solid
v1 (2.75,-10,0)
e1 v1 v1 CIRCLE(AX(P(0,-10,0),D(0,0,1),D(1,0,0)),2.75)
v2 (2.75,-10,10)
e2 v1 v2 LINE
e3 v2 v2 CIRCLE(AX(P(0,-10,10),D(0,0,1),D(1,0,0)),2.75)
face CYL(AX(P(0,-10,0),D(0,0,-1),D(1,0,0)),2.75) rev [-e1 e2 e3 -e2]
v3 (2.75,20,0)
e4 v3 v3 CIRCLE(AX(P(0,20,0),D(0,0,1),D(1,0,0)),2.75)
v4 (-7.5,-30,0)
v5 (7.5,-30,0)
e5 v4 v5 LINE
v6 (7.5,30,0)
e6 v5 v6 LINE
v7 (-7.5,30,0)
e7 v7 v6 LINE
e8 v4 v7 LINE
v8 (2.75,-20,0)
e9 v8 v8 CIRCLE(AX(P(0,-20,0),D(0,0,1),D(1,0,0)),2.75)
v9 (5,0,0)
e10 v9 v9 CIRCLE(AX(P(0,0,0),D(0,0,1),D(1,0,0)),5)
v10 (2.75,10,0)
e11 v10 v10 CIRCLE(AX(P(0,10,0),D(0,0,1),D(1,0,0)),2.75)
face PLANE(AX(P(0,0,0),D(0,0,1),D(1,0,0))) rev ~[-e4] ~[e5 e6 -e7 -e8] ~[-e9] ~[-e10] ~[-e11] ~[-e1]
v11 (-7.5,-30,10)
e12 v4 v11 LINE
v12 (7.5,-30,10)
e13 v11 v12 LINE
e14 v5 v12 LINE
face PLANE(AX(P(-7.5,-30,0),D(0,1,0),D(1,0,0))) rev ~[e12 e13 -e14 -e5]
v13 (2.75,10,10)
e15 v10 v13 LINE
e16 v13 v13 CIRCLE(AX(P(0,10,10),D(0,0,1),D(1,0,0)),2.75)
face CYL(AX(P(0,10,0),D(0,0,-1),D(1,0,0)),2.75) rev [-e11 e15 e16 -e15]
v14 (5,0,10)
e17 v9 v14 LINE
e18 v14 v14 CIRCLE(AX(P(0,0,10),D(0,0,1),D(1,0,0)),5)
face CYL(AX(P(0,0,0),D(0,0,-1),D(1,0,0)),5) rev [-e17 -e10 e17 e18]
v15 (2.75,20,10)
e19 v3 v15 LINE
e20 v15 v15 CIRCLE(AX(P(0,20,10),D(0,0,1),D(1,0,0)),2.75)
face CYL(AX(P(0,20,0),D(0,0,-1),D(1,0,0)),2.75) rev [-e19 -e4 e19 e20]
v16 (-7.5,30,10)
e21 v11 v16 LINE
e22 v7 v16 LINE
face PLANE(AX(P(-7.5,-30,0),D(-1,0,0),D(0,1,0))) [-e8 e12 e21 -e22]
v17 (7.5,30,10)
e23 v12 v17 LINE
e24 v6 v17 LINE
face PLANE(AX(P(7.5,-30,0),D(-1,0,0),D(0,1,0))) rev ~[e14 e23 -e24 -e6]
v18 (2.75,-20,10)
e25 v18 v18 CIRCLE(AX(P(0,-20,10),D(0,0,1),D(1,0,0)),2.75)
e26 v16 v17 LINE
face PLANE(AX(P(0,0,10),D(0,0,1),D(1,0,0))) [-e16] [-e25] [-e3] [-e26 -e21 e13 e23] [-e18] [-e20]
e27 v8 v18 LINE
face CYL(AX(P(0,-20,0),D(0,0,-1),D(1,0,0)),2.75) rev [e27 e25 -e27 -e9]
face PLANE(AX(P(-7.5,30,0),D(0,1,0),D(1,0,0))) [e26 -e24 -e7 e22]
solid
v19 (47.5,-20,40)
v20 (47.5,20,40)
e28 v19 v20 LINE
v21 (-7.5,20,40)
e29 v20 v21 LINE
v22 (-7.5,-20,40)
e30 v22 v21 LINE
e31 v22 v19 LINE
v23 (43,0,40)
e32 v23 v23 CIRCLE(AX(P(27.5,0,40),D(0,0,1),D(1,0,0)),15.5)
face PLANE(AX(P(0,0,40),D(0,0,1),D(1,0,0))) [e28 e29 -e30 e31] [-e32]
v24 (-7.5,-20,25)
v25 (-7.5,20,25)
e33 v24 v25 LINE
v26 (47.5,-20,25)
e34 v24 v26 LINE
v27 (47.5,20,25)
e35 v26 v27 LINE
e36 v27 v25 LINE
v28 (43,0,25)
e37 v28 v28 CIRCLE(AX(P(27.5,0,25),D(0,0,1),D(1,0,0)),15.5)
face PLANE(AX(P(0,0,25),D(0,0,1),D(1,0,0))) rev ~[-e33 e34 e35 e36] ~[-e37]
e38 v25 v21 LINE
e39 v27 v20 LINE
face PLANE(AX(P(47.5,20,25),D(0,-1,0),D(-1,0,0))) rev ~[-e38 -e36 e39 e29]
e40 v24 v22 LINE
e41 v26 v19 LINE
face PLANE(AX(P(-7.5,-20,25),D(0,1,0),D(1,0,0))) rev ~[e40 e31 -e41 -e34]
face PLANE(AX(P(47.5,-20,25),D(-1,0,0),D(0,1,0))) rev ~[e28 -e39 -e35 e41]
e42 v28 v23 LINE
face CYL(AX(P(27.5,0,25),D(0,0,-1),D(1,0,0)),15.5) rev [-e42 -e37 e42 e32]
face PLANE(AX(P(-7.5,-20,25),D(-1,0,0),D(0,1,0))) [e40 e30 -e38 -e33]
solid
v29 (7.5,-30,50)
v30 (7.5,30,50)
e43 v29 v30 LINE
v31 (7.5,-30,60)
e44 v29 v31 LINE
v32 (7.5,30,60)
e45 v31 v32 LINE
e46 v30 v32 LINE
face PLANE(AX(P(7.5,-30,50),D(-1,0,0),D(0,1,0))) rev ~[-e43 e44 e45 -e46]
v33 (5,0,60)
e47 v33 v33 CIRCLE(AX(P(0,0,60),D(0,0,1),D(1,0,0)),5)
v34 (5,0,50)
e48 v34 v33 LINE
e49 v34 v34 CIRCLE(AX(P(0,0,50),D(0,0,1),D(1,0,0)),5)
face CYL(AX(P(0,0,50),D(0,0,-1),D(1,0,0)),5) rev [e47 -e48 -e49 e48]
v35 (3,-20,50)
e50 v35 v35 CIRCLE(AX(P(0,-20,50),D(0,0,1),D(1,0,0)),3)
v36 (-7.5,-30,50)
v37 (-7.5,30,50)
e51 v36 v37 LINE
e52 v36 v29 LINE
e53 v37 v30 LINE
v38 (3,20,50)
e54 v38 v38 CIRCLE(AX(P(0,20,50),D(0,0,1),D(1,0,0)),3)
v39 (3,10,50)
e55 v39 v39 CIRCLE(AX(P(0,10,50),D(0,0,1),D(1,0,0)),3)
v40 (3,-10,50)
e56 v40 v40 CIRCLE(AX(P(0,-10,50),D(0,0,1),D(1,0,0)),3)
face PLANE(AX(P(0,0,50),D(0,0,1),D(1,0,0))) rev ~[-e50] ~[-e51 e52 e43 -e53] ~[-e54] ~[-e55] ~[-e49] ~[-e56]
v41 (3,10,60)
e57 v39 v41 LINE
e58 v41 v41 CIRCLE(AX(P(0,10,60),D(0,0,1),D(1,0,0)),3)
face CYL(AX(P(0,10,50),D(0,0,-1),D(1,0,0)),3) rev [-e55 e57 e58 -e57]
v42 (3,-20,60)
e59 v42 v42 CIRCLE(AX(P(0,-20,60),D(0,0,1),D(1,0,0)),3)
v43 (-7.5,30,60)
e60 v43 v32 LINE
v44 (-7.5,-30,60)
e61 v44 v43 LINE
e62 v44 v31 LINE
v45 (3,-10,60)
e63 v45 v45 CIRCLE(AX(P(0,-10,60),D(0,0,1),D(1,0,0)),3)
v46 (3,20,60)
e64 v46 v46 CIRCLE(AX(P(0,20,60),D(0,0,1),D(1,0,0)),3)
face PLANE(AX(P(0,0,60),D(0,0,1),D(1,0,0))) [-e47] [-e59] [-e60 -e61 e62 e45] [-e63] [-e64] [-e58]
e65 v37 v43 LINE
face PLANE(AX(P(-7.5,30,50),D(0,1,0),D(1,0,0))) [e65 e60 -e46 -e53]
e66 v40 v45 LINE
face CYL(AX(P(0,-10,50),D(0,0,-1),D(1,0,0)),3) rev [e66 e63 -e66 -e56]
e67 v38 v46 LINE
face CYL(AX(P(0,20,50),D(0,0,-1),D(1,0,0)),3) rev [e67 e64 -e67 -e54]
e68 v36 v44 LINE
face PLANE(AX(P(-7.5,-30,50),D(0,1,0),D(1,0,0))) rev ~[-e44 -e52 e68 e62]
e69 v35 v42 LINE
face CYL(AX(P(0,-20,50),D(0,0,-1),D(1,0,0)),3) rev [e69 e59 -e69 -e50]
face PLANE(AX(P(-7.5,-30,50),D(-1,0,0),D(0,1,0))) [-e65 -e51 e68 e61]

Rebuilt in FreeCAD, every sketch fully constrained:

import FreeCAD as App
import Part
import Sketcher


def add_polygon(sketch, points):
    """Adds a closed chain of lines whose ends are joined by coincident constraints."""
    first, n = sketch.GeometryCount, len(points)
    for a, b in zip(points, points[1:] + points[:1]):
        sketch.addGeometry(Part.LineSegment(App.Vector(*a, 0), App.Vector(*b, 0)), False)
    for i in range(n):
        sketch.addConstraint(Sketcher.Constraint("Coincident", first + i, 2, first + (i + 1) % n, 1))

doc = App.newDocument("Part")
params = doc.addObject("Spreadsheet::Sheet", "Params")
for row, (alias, value) in enumerate([
    ("sketch1_diameter", "10 mm"),
    ("sketch1_diameter2", "5.5 mm"),
    ("sketch1_width", "15 mm"),
    ("sketch1_height", "60 mm"),
    ("pad1_length", "10 mm"),
    ("sketch2_diameter", "6 mm"),
    ("sketch2_diameter2", "10 mm"),
    ("sketch2_width", "15 mm"),
    ("sketch2_height", "60 mm"),
    ("pad2_length", "10 mm"),
    ("sketch3_diameter", "31 mm"),
    ("sketch3_width", "55 mm"),
    ("sketch3_height", "40 mm"),
    ("pad3_length", "15 mm"),
], start=1):
    params.set(f"A{row}", alias)
    params.set(f"B{row}", "=" + value)
    params.setAlias(f"B{row}", alias)

body = doc.addObject("PartDesign::Body", "Body")

# Sketch on XY plane
sketch1 = doc.addObject("Sketcher::SketchObject", "Sketch")
body.addObject(sketch1)
sketch1.AttachmentSupport = (doc.XY_Plane, [""])
sketch1.MapMode = "FlatFace"
add_polygon(sketch1, [(-7.5, 30), (-7.5, -30), (7.5, -30), (7.5, 30)])  # lines 0-3
sketch1.addGeometry(Part.Circle(App.Vector(0, -20, 0), App.Vector(0, 0, 1), 2.75), False)  # 4
sketch1.addGeometry(Part.Circle(App.Vector(0, -10, 0), App.Vector(0, 0, 1), 2.75), False)  # 5
sketch1.addGeometry(Part.Circle(App.Vector(0, 0, 0), App.Vector(0, 0, 1), 5), False)  # 6
sketch1.addGeometry(Part.Circle(App.Vector(0, 10, 0), App.Vector(0, 0, 1), 2.75), False)  # 7
sketch1.addGeometry(Part.Circle(App.Vector(0, 20, 0), App.Vector(0, 0, 1), 2.75), False)  # 8
sketch1.addConstraint([
    Sketcher.Constraint("Vertical", 0),
    Sketcher.Constraint("Horizontal", 1),
    Sketcher.Constraint("Vertical", 2),
    Sketcher.Constraint("Horizontal", 3),
    Sketcher.Constraint("Coincident", 6, 3, -1, 1),
    Sketcher.Constraint("Equal", 4, 5),
    Sketcher.Constraint("Equal", 5, 7),
    Sketcher.Constraint("Equal", 7, 8),
    Sketcher.Constraint("Symmetric", 5, 3, 7, 3, -1, 1),
    Sketcher.Constraint("Symmetric", 4, 3, 8, 3, -1, 1),
    Sketcher.Constraint("Symmetric", 0, 2, 2, 2, -1, 1),
    Sketcher.Constraint("PointOnObject", 4, 3, -2),
    Sketcher.Constraint("PointOnObject", 5, 3, -2),
    Sketcher.Constraint("Diameter", 6, 10.0),
    Sketcher.Constraint("Diameter", 4, 5.5),
    Sketcher.Constraint("DistanceX", 1, 1, 1, 2, 15.0),
    Sketcher.Constraint("DistanceY", 0, 2, 0, 1, 60.0),
    Sketcher.Constraint("DistanceY", 4, 3, -1, 1, 20.0),
    Sketcher.Constraint("DistanceY", 5, 3, -1, 1, 10.0),
])
sketch1.setExpression("Constraints[17]", "Params.sketch1_diameter")
sketch1.setExpression("Constraints[18]", "Params.sketch1_diameter2")
sketch1.setExpression("Constraints[19]", "Params.sketch1_width")
sketch1.setExpression("Constraints[20]", "Params.sketch1_height")
pad1 = doc.addObject("PartDesign::Pad", "Pad")
body.addObject(pad1)
pad1.Profile = sketch1
pad1.setExpression("Length", "Params.pad1_length")
body2 = doc.addObject("PartDesign::Body", "Body001")

# Sketch on XY plane
sketch2 = doc.addObject("Sketcher::SketchObject", "Sketch001")
body2.addObject(sketch2)
sketch2.AttachmentSupport = (doc.getObject("XY_Plane001"), [""])
sketch2.MapMode = "FlatFace"
sketch2.AttachmentOffset = App.Placement(App.Vector(0, 0, 50), App.Rotation())
add_polygon(sketch2, [(-7.5, 30), (-7.5, -30), (7.5, -30), (7.5, 30)])  # lines 0-3
sketch2.addGeometry(Part.Circle(App.Vector(0, -20, 0), App.Vector(0, 0, 1), 3), False)  # 4
sketch2.addGeometry(Part.Circle(App.Vector(0, -10, 0), App.Vector(0, 0, 1), 3), False)  # 5
sketch2.addGeometry(Part.Circle(App.Vector(0, 0, 0), App.Vector(0, 0, 1), 5), False)  # 6
sketch2.addGeometry(Part.Circle(App.Vector(0, 10, 0), App.Vector(0, 0, 1), 3), False)  # 7
sketch2.addGeometry(Part.Circle(App.Vector(0, 20, 0), App.Vector(0, 0, 1), 3), False)  # 8
sketch2.addConstraint([
    Sketcher.Constraint("Vertical", 0),
    Sketcher.Constraint("Horizontal", 1),
    Sketcher.Constraint("Vertical", 2),
    Sketcher.Constraint("Horizontal", 3),
    Sketcher.Constraint("Coincident", 6, 3, -1, 1),
    Sketcher.Constraint("Equal", 4, 5),
    Sketcher.Constraint("Equal", 5, 7),
    Sketcher.Constraint("Equal", 7, 8),
    Sketcher.Constraint("Symmetric", 5, 3, 7, 3, -1, 1),
    Sketcher.Constraint("Symmetric", 4, 3, 8, 3, -1, 1),
    Sketcher.Constraint("Symmetric", 0, 2, 2, 2, -1, 1),
    Sketcher.Constraint("PointOnObject", 4, 3, -2),
    Sketcher.Constraint("PointOnObject", 5, 3, -2),
    Sketcher.Constraint("Diameter", 4, 6.0),
    Sketcher.Constraint("Diameter", 6, 10.0),
    Sketcher.Constraint("DistanceX", 1, 1, 1, 2, 15.0),
    Sketcher.Constraint("DistanceY", 0, 2, 0, 1, 60.0),
    Sketcher.Constraint("DistanceY", 4, 3, -1, 1, 20.0),
    Sketcher.Constraint("DistanceY", 5, 3, -1, 1, 10.0),
])
sketch2.setExpression("Constraints[17]", "Params.sketch2_diameter")
sketch2.setExpression("Constraints[18]", "Params.sketch2_diameter2")
sketch2.setExpression("Constraints[19]", "Params.sketch2_width")
sketch2.setExpression("Constraints[20]", "Params.sketch2_height")
pad2 = doc.addObject("PartDesign::Pad", "Pad001")
body2.addObject(pad2)
pad2.Profile = sketch2
pad2.setExpression("Length", "Params.pad2_length")
body3 = doc.addObject("PartDesign::Body", "Body002")

# Sketch on XY plane
sketch3 = doc.addObject("Sketcher::SketchObject", "Sketch002")
body3.addObject(sketch3)
sketch3.AttachmentSupport = (doc.getObject("XY_Plane002"), [""])
sketch3.MapMode = "FlatFace"
sketch3.AttachmentOffset = App.Placement(App.Vector(0, 0, 25), App.Rotation())
add_polygon(sketch3, [(-7.5, 20), (-7.5, -20), (47.5, -20), (47.5, 20)])  # lines 0-3
sketch3.addGeometry(Part.Circle(App.Vector(27.5, 0, 0), App.Vector(0, 0, 1), 15.5), False)  # 4
sketch3.addConstraint([
    Sketcher.Constraint("Vertical", 0),
    Sketcher.Constraint("Horizontal", 1),
    Sketcher.Constraint("Vertical", 2),
    Sketcher.Constraint("Horizontal", 3),
    Sketcher.Constraint("PointOnObject", 4, 3, -1),
    Sketcher.Constraint("Diameter", 4, 31.0),
    Sketcher.Constraint("DistanceX", 1, 1, 1, 2, 55.0),
    Sketcher.Constraint("DistanceY", 0, 2, 0, 1, 40.0),
    Sketcher.Constraint("DistanceY", 0, 2, -1, 1, 20.0),
    Sketcher.Constraint("DistanceX", 0, 2, 4, 3, 35.0),
    Sketcher.Constraint("DistanceX", -1, 1, 4, 3, 27.5),
])
sketch3.setExpression("Constraints[9]", "Params.sketch3_diameter")
sketch3.setExpression("Constraints[10]", "Params.sketch3_width")
sketch3.setExpression("Constraints[11]", "Params.sketch3_height")
pad3 = doc.addObject("PartDesign::Pad", "Pad002")
body3.addObject(pad3)
pad3.Profile = sketch3
pad3.setExpression("Length", "Params.pad3_length")

doc.recompute()
